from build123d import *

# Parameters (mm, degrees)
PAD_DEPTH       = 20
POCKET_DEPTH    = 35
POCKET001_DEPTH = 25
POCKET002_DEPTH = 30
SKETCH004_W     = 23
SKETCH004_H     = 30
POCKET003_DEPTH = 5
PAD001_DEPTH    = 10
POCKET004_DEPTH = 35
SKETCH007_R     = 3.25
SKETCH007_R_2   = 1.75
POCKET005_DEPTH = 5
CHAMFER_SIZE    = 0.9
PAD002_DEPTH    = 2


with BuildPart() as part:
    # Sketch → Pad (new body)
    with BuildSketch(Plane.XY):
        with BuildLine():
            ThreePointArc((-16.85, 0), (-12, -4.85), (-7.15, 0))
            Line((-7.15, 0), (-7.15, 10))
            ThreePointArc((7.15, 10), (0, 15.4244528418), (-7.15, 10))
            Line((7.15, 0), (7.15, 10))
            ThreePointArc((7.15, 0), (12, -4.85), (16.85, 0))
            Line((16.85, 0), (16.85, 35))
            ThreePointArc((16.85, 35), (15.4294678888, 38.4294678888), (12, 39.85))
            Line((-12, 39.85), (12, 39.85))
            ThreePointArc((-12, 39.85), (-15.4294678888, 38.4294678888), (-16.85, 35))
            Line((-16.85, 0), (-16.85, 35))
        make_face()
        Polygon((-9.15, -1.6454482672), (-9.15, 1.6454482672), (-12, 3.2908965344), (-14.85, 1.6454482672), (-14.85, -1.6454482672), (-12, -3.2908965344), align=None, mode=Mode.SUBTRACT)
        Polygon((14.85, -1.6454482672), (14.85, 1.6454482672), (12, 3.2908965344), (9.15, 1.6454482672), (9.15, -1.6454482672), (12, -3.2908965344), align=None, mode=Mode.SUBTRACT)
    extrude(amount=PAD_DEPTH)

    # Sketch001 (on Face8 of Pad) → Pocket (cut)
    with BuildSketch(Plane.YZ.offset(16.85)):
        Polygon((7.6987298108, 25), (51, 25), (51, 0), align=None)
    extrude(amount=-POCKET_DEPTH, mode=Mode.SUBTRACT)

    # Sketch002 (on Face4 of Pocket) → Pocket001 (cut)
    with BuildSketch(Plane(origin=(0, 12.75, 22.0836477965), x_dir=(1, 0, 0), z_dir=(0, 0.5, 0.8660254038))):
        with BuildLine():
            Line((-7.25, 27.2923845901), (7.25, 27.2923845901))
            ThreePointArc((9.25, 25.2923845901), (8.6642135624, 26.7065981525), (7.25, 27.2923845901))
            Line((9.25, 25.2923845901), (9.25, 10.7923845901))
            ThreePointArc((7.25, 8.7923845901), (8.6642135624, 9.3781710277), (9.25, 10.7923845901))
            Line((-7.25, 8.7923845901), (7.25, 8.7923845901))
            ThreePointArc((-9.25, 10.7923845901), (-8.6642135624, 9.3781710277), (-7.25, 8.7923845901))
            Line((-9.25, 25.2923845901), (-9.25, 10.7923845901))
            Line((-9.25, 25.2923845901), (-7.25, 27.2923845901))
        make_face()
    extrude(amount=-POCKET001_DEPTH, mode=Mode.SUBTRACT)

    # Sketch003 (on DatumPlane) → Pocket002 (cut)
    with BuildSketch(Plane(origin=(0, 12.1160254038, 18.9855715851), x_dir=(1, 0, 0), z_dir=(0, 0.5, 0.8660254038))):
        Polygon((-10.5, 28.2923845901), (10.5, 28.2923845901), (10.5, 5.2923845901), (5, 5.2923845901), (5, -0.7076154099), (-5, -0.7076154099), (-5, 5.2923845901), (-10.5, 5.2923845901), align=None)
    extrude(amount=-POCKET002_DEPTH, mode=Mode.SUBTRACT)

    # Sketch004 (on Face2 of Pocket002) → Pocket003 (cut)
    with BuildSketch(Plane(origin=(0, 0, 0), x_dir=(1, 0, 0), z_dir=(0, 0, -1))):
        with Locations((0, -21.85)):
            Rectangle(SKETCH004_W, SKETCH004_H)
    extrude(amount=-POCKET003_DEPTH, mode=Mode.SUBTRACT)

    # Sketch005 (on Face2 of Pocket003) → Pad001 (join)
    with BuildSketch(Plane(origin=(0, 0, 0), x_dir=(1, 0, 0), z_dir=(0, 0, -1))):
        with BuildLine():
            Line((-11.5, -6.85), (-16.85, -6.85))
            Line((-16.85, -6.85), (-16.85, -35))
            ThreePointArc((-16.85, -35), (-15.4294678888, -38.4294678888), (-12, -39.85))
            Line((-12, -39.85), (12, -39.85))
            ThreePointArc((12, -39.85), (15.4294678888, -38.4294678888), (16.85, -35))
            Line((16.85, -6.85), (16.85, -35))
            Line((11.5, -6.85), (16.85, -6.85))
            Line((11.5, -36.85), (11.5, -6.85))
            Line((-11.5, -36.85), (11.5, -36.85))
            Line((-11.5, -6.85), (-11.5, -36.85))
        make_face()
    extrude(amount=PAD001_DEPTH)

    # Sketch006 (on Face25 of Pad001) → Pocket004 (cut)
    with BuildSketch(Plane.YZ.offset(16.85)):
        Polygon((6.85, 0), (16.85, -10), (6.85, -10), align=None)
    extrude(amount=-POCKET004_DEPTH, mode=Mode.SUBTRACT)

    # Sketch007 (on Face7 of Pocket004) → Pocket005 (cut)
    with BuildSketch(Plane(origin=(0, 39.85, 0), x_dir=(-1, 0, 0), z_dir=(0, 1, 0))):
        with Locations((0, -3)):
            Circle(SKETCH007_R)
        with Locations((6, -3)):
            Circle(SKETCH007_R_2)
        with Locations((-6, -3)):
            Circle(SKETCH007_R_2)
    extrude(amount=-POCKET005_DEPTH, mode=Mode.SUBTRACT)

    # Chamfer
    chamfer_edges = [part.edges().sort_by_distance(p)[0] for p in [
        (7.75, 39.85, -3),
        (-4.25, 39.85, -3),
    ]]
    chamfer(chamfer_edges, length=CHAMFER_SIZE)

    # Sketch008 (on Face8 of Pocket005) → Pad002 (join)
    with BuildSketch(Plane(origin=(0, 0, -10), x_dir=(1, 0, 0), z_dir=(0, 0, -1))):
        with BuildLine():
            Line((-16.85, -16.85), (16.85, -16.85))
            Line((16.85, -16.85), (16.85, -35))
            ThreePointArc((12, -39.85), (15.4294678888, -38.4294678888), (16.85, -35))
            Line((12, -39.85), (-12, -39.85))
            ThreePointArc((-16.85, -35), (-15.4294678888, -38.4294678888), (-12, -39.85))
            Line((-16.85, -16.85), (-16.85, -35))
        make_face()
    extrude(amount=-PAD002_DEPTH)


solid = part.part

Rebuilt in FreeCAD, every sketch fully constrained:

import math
import FreeCAD as App
import Part
import Sketcher

V = App.Vector
Q = App.Units.Quantity


def edges_at(feature, points):
    """Names of the edges that pass closest to the given points."""
    edges = feature.Shape.Edges
    near = lambda p: min(range(len(edges)), key=lambda i: edges[i].distToShape(Part.Vertex(*p))[0])
    return sorted({f"Edge{near(p) + 1}" for p in points})


def add_polygon(sketch, points):
    """Adds a closed chain of lines whose ends are joined by coincident constraints."""
    first, n = sketch.GeometryCount, len(points)
    for a, b in zip(points, points[1:] + points[:1]):
        sketch.addGeometry(Part.LineSegment(App.Vector(*a, 0), App.Vector(*b, 0)), False)
    for i in range(n):
        sketch.addConstraint(Sketcher.Constraint("Coincident", first + i, 2, first + (i + 1) % n, 1))

doc = App.newDocument("Part")
body = doc.addObject("PartDesign::Body", "Body")

sketch1 = body.newObject("Sketcher::SketchObject", "Sketch")
sketch1.AttachmentSupport = (doc.getObject("XY_Plane"), [""])
sketch1.MapMode = "FlatFace"
sketch1.addGeometry(Part.ArcOfCircle(Part.Circle(V(-12, 0, 0), V(0, 0, 1), 4.8), math.radians(180), math.radians(360)), False)
sketch1.addGeometry(Part.LineSegment(V(-7.2, 0, 0), V(-7.2, 10, 0)), False)
sketch1.addGeometry(Part.ArcOfCircle(Part.Circle(V(0, 8, 0), V(0, 0, 1), 7.4), math.radians(16), math.radians(164)), False)
sketch1.addGeometry(Part.LineSegment(V(7.2, 10, 0), V(7.2, 0, 0)), False)
sketch1.addGeometry(Part.ArcOfCircle(Part.Circle(V(12, 0, 0), V(0, 0, 1), 4.8), math.radians(180), math.radians(360)), False)
sketch1.addGeometry(Part.LineSegment(V(16.9, 0, 0), V(16.9, 35, 0)), False)
sketch1.addGeometry(Part.ArcOfCircle(Part.Circle(V(12, 35, 0), V(0, 0, 1), 4.8), math.radians(0), math.radians(90)), False)
sketch1.addGeometry(Part.LineSegment(V(12, 39.9, 0), V(-12, 39.9, 0)), False)
sketch1.addGeometry(Part.ArcOfCircle(Part.Circle(V(-12, 35, 0), V(0, 0, 1), 4.8), math.radians(90), math.radians(180)), False)
sketch1.addGeometry(Part.LineSegment(V(-16.9, 35, 0), V(-16.9, 0, 0)), False)
add_polygon(sketch1, [(-9.2, 1.6), (-9.2, -1.6), (-12, -3.3), (-14.8, -1.6), (-14.8, 1.6), (-12, 3.3)])
add_polygon(sketch1, [(14.8, 1.6), (14.8, -1.6), (12, -3.3), (9.2, -1.6), (9.2, 1.6), (12, 3.3)])
sketch1.addConstraint([
    Sketcher.Constraint("Tangent", 0, 2, 1, 1),
    Sketcher.Constraint("Coincident", 1, 2, 2, 2),
    Sketcher.Constraint("Coincident", 2, 1, 3, 1),
    Sketcher.Constraint("Tangent", 3, 2, 4, 1),
    Sketcher.Constraint("Tangent", 4, 2, 5, 1),
    Sketcher.Constraint("Tangent", 5, 2, 6, 1),
    Sketcher.Constraint("Tangent", 6, 2, 7, 1),
    Sketcher.Constraint("Tangent", 7, 2, 8, 1),
    Sketcher.Constraint("Tangent", 8, 2, 9, 1),
    Sketcher.Constraint("Tangent", 9, 2, 0, 1),
    Sketcher.Constraint("Vertical", 1),
    Sketcher.Constraint("Vertical", 3),
    Sketcher.Constraint("Vertical", 5),
    Sketcher.Constraint("Horizontal", 7),
    Sketcher.Constraint("Vertical", 9),
    Sketcher.Constraint("Vertical", 10),
    Sketcher.Constraint("Vertical", 13),
    Sketcher.Constraint("Vertical", 16),
    Sketcher.Constraint("Vertical", 19),
    Sketcher.Constraint("Equal", 0, 4),
    Sketcher.Constraint("Equal", 4, 6),
    Sketcher.Constraint("Equal", 6, 8),
    Sketcher.Constraint("Symmetric", 0, 3, 4, 3, -1, 1),
    Sketcher.Constraint("Symmetric", 13, 2, 16, 2, -1, 1),
    Sketcher.Constraint("Symmetric", 14, 2, 17, 2, -1, 1),
    Sketcher.Constraint("Symmetric", 15, 2, 18, 2, -1, 1),
    Sketcher.Constraint("Symmetric", 11, 2, 20, 2, -1, 1),
    Sketcher.Constraint("Symmetric", 11, 2, 17, 2, -2),
    Sketcher.Constraint("PointOnObject", 0, 3, -1),
    Sketcher.Constraint("PointOnObject", 2, 3, -2),
    Sketcher.Constraint("Parallel", 11, 14),
    Sketcher.Constraint("Parallel", 12, 15),
    Sketcher.Constraint("Parallel", 17, 20),
    Sketcher.Constraint("Parallel", 18, 21),
    Sketcher.Constraint("Horizontal", 10, 2, 12, 2),
    Sketcher.Constraint("Horizontal", 13, 2, 15, 2),
    Sketcher.Constraint("Vertical", 7, 2, 11, 2),
    Sketcher.Constraint("DistanceX", 7, 2, 7, 1, Q("24 mm")),
    Sketcher.Constraint("DistanceY", 1, 1, 1, 2, Q("10 mm")),
    Sketcher.Constraint("DistanceY", 5, 1, 5, 2, Q("35 mm")),
    Sketcher.Constraint("Angle", 11, Q("-150 deg")),
    Sketcher.Constraint("Radius", 0, Q("4.85 mm")),
    Sketcher.Constraint("DistanceY", -1, 1, 2, 3, Q("8 mm")),
    Sketcher.Constraint("DistanceX", 10, 2, 0, 2, Q("2 mm")),
    Sketcher.Constraint("DistanceY", 10, 2, 10, 1, Q("3.290897 mm")),
])
pad1 = body.newObject("PartDesign::Pad", "Pad")
pad1.Profile = sketch1
pad1.Length = 20

sketch2 = body.newObject("Sketcher::SketchObject", "Sketch001")
sketch2.AttachmentSupport = (doc.getObject("YZ_Plane"), [""])
sketch2.MapMode = "FlatFace"
sketch2.AttachmentOffset = App.Placement(V(0, 0, 16.85), App.Rotation())
add_polygon(sketch2, [(51, 25), (8, 25), (51, 0)])
sketch2.addConstraint([
    Sketcher.Constraint("Horizontal", 0),
    Sketcher.Constraint("Vertical", 2),
    Sketcher.Constraint("PointOnObject", 1, 2, -1),
    Sketcher.Constraint("DistanceY", 2, 1, 2, 2, Q("25 mm")),
    Sketcher.Constraint("Angle", 1, Q("-30 deg")),
    Sketcher.Constraint("DistanceX", -1, 1, 1, 2, Q("51 mm")),
])
pocket1 = body.newObject("PartDesign::Pocket", "Pocket")
pocket1.Profile = sketch2
pocket1.Length = 35

sketch3 = body.newObject("Sketcher::SketchObject", "Sketch002")
sketch3.Placement = App.Placement(V(0, 12.75, 22.083648), App.Rotation(V(1, 0, 0), V(0, 0.866025404, -0.5), V(0, 0.5, 0.866025404), "ZXY"))
sketch3.addGeometry([
    Part.LineSegment(V(7.2, 27.3, 0), V(-7.2, 27.3, 0)),
    Part.LineSegment(V(-7.2, 27.3, 0), V(-9.2, 25.3, 0)),
    Part.LineSegment(V(-9.2, 25.3, 0), V(-9.2, 10.8, 0)),
    Part.ArcOfCircle(Part.Circle(V(-7.2, 10.8, 0), V(0, 0, 1), 2), math.radians(180), math.radians(270)),
    Part.LineSegment(V(-7.2, 8.8, 0), V(7.2, 8.8, 0)),
    Part.ArcOfCircle(Part.Circle(V(7.2, 10.8, 0), V(0, 0, 1), 2), math.radians(-90), math.radians(0)),
    Part.LineSegment(V(9.2, 10.8, 0), V(9.2, 25.3, 0)),
    Part.ArcOfCircle(Part.Circle(V(7.2, 25.3, 0), V(0, 0, 1), 2), math.radians(0), math.radians(90)),
], False)
sketch3.addConstraint([
    Sketcher.Constraint("Coincident", 0, 2, 1, 1),
    Sketcher.Constraint("Coincident", 1, 2, 2, 1),
    Sketcher.Constraint("Tangent", 2, 2, 3, 1),
    Sketcher.Constraint("Tangent", 3, 2, 4, 1),
    Sketcher.Constraint("Tangent", 4, 2, 5, 1),
    Sketcher.Constraint("Tangent", 5, 2, 6, 1),
    Sketcher.Constraint("Tangent", 6, 2, 7, 1),
    Sketcher.Constraint("Tangent", 7, 2, 0, 1),
    Sketcher.Constraint("Horizontal", 0),
    Sketcher.Constraint("Vertical", 2),
    Sketcher.Constraint("Horizontal", 4),
    Sketcher.Constraint("Vertical", 6),
    Sketcher.Constraint("Equal", 3, 5),
    Sketcher.Constraint("Equal", 5, 7),
    Sketcher.Constraint("Symmetric", 1, 2, 6, 2, -2),
    Sketcher.Constraint("Vertical", 3, 3, 0, 2),
    Sketcher.Constraint("Equal", 4, 2),
    Sketcher.Constraint("Radius", 3, Q("2 mm")),
    Sketcher.Constraint("DistanceX", 0, 2, 0, 1, Q("14.5 mm")),
    Sketcher.Constraint("DistanceY", -1, 1, 3, 3, Q("10.792385 mm")),
])
pocket2 = body.newObject("PartDesign::Pocket", "Pocket001")
pocket2.Profile = sketch3
pocket2.Length = 25

sketch4 = body.newObject("Sketcher::SketchObject", "Sketch003")
sketch4.Placement = App.Placement(V(0, 12.116025, 18.985572), App.Rotation(V(1, 0, 0), V(0, 0.866025404, -0.5), V(0, 0.5, 0.866025404), "ZXY"))
add_polygon(sketch4, [(10, 28), (-10, 28), (-10, 5), (-5, 5), (-5, -1), (5, -1), (5, 5), (10, 5)])
sketch4.addConstraint([
    Sketcher.Constraint("Horizontal", 0),
    Sketcher.Constraint("Vertical", 1),
    Sketcher.Constraint("Horizontal", 2),
    Sketcher.Constraint("Vertical", 3),
    Sketcher.Constraint("Horizontal", 4),
    Sketcher.Constraint("Vertical", 5),
    Sketcher.Constraint("Horizontal", 6),
    Sketcher.Constraint("Vertical", 7),
    Sketcher.Constraint("Symmetric", 2, 2, 5, 2, -2),
    Sketcher.Constraint("Equal", 2, 6),
    Sketcher.Constraint("DistanceX", 0, 2, 0, 1, Q("21 mm")),
    Sketcher.Constraint("DistanceX", 4, 1, 4, 2, Q("10 mm")),
    Sketcher.Constraint("DistanceY", 1, 2, 1, 1, Q("23 mm")),
    Sketcher.Constraint("DistanceY", 3, 2, 3, 1, Q("6 mm")),
    Sketcher.Constraint("DistanceY", -1, 1, 0, 2, Q("28.292385 mm")),
])
pocket3 = body.newObject("PartDesign::Pocket", "Pocket002")
pocket3.Profile = sketch4
pocket3.Length = 30

sketch5 = body.newObject("Sketcher::SketchObject", "Sketch004")
sketch5.AttachmentSupport = (doc.getObject("XY_Plane"), [""])
sketch5.MapMode = "FlatFace"
add_polygon(sketch5, [(-12, 7), (-12, 37), (12, 37), (12, 7)])
sketch5.addConstraint([
    Sketcher.Constraint("Vertical", 0),
    Sketcher.Constraint("Horizontal", 1),
    Sketcher.Constraint("Vertical", 2),
    Sketcher.Constraint("Horizontal", 3),
    Sketcher.Constraint("DistanceX", 1, 1, 1, 2, Q("23 mm")),
    Sketcher.Constraint("DistanceY", 0, 1, 0, 2, Q("30 mm")),
    Sketcher.Constraint("DistanceX", 0, 2, -1, 1, Q("11.5 mm")),
    Sketcher.Constraint("DistanceY", -1, 1, 0, 2, Q("36.85 mm")),
])
pocket4 = body.newObject("PartDesign::Pocket", "Pocket003")
pocket4.Profile = sketch5
pocket4.Length = 5
pocket4.Reversed = True

sketch6 = body.newObject("Sketcher::SketchObject", "Sketch005")
sketch6.AttachmentSupport = (doc.getObject("XY_Plane"), [""])
sketch6.MapMode = "FlatFace"
sketch6.addGeometry([
    Part.LineSegment(V(-11.5, 6.8, 0), V(-16.9, 6.8, 0)),
    Part.LineSegment(V(-16.9, 6.8, 0), V(-16.9, 35, 0)),
    Part.ArcOfCircle(Part.Circle(V(-12, 35, 0), V(0, 0, 1), 4.8), math.radians(90), math.radians(180)),
    Part.LineSegment(V(-12, 39.9, 0), V(12, 39.9, 0)),
    Part.ArcOfCircle(Part.Circle(V(12, 35, 0), V(0, 0, 1), 4.8), math.radians(0), math.radians(90)),
    Part.LineSegment(V(16.9, 35, 0), V(16.9, 6.8, 0)),
    Part.LineSegment(V(16.9, 6.8, 0), V(11.5, 6.8, 0)),
    Part.LineSegment(V(11.5, 6.8, 0), V(11.5, 36.9, 0)),
    Part.LineSegment(V(11.5, 36.9, 0), V(-11.5, 36.9, 0)),
    Part.LineSegment(V(-11.5, 36.9, 0), V(-11.5, 6.8, 0)),
], False)
sketch6.addConstraint([
    Sketcher.Constraint("Coincident", 0, 2, 1, 1),
    Sketcher.Constraint("Tangent", 1, 2, 2, 2),
    Sketcher.Constraint("Tangent", 2, 1, 3, 1),
    Sketcher.Constraint("Tangent", 3, 2, 4, 2),
    Sketcher.Constraint("Tangent", 4, 1, 5, 1),
    Sketcher.Constraint("Coincident", 5, 2, 6, 1),
    Sketcher.Constraint("Coincident", 6, 2, 7, 1),
    Sketcher.Constraint("Coincident", 7, 2, 8, 1),
    Sketcher.Constraint("Coincident", 8, 2, 9, 1),
    Sketcher.Constraint("Coincident", 9, 2, 0, 1),
    Sketcher.Constraint("Horizontal", 0),
    Sketcher.Constraint("Vertical", 1),
    Sketcher.Constraint("Horizontal", 3),
    Sketcher.Constraint("Vertical", 5),
    Sketcher.Constraint("Horizontal", 6),
    Sketcher.Constraint("Vertical", 7),
    Sketcher.Constraint("Horizontal", 8),
    Sketcher.Constraint("Vertical", 9),
    Sketcher.Constraint("Equal", 2, 4),
    Sketcher.Constraint("Symmetric", 0, 2, 5, 2, -2),
    Sketcher.Constraint("Equal", 0, 6),
    Sketcher.Constraint("DistanceX", 3, 1, 3, 2, Q("24 mm")),
    Sketcher.Constraint("DistanceX", 8, 2, 8, 1, Q("23 mm")),
    Sketcher.Constraint("DistanceY", 7, 1, 7, 2, Q("30 mm")),
    Sketcher.Constraint("Radius", 2, Q("4.85 mm")),
    Sketcher.Constraint("DistanceY", -1, 1, 2, 3, Q("35 mm")),
    Sketcher.Constraint("DistanceY", 0, 2, 2, 1, Q("33 mm")),
])
pad2 = body.newObject("PartDesign::Pad", "Pad001")
pad2.Profile = sketch6
pad2.Length = 10
pad2.Reversed = True

sketch7 = body.newObject("Sketcher::SketchObject", "Sketch006")
sketch7.AttachmentSupport = (doc.getObject("YZ_Plane"), [""])
sketch7.MapMode = "FlatFace"
sketch7.AttachmentOffset = App.Placement(V(0, 0, 16.85), App.Rotation())
add_polygon(sketch7, [(17, -10), (7, 0), (7, -10)])
sketch7.addConstraint([
    Sketcher.Constraint("Vertical", 1),
    Sketcher.Constraint("Horizontal", 2),
    Sketcher.Constraint("PointOnObject", 0, 2, -1),
    Sketcher.Constraint("Equal", 2, 1),
    Sketcher.Constraint("DistanceX", 2, 1, 2, 2, Q("10 mm")),
    Sketcher.Constraint("DistanceX", -1, 1, 0, 2, Q("6.85 mm")),
])
pocket5 = body.newObject("PartDesign::Pocket", "Pocket004")
pocket5.Profile = sketch7
pocket5.Length = 35

sketch8 = body.newObject("Sketcher::SketchObject", "Sketch007")
sketch8.AttachmentSupport = (doc.getObject("XZ_Plane"), [""])
sketch8.MapMode = "FlatFace"
sketch8.AttachmentOffset = App.Placement(V(0, 0, -39.85), App.Rotation())
sketch8.addGeometry([
    Part.Circle(V(0, -3, 0), V(0, 0, 1), 3.2),
    Part.Circle(V(-6, -3, 0), V(0, 0, 1), 1.8),
    Part.Circle(V(6, -3, 0), V(0, 0, 1), 1.8),
], False)
sketch8.addConstraint([
    Sketcher.Constraint("Equal", 1, 2),
    Sketcher.Constraint("Symmetric", 1, 3, 2, 3, -2),
    Sketcher.Constraint("PointOnObject", 0, 3, -2),
    Sketcher.Constraint("Horizontal", 0, 3, 1, 3),
    Sketcher.Constraint("Diameter", 0, Q("6.5 mm")),
    Sketcher.Constraint("Diameter", 1, Q("3.5 mm")),
    Sketcher.Constraint("DistanceY", 0, 3, -1, 1, Q("3 mm")),
    Sketcher.Constraint("DistanceX", 1, 3, -1, 1, Q("6 mm")),
])
pocket6 = body.newObject("PartDesign::Pocket", "Pocket005")
pocket6.Profile = sketch8
pocket6.Length = 5
pocket6.Reversed = True
doc.recompute()

chamfer = body.newObject("PartDesign::Chamfer", "Chamfer")
chamfer.Base = (pocket6, edges_at(pocket6, [(7.75, 39.85, -3), (-4.25, 39.85, -3)]))
chamfer.Size = 0.9

sketch9 = body.newObject("Sketcher::SketchObject", "Sketch008")
sketch9.AttachmentSupport = (doc.getObject("XY_Plane"), [""])
sketch9.MapMode = "FlatFace"
sketch9.AttachmentOffset = App.Placement(V(0, 0, -10), App.Rotation())
sketch9.addGeometry([
    Part.LineSegment(V(16.9, 16.9, 0), V(-16.9, 16.9, 0)),
    Part.LineSegment(V(-16.9, 16.9, 0), V(-16.9, 35, 0)),
    Part.ArcOfCircle(Part.Circle(V(-12, 35, 0), V(0, 0, 1), 4.8), math.radians(90), math.radians(180)),
    Part.LineSegment(V(-12, 39.9, 0), V(12, 39.9, 0)),
    Part.ArcOfCircle(Part.Circle(V(12, 35, 0), V(0, 0, 1), 4.8), math.radians(0), math.radians(90)),
    Part.LineSegment(V(16.9, 35, 0), V(16.9, 16.9, 0)),
], False)
sketch9.addConstraint([
    Sketcher.Constraint("Coincident", 0, 2, 1, 1),
    Sketcher.Constraint("Tangent", 1, 2, 2, 2),
    Sketcher.Constraint("Tangent", 2, 1, 3, 1),
    Sketcher.Constraint("Tangent", 3, 2, 4, 2),
    Sketcher.Constraint("Tangent", 4, 1, 5, 1),
    Sketcher.Constraint("Coincident", 5, 2, 0, 1),
    Sketcher.Constraint("Horizontal", 0),
    Sketcher.Constraint("Vertical", 1),
    Sketcher.Constraint("Horizontal", 3),
    Sketcher.Constraint("Vertical", 5),
    Sketcher.Constraint("Equal", 2, 4),
    Sketcher.Constraint("DistanceX", 3, 1, 3, 2, Q("24 mm")),
    Sketcher.Constraint("Radius", 2, Q("4.85 mm")),
    Sketcher.Constraint("DistanceX", 2, 3, -1, 1, Q("12 mm")),
    Sketcher.Constraint("DistanceY", -1, 1, 2, 3, Q("35 mm")),
    Sketcher.Constraint("DistanceY", 0, 2, 2, 1, Q("23 mm")),
])
pad3 = body.newObject("PartDesign::Pad", "Pad002")
pad3.Profile = sketch9
pad3.Length = 2

doc.recompute()
